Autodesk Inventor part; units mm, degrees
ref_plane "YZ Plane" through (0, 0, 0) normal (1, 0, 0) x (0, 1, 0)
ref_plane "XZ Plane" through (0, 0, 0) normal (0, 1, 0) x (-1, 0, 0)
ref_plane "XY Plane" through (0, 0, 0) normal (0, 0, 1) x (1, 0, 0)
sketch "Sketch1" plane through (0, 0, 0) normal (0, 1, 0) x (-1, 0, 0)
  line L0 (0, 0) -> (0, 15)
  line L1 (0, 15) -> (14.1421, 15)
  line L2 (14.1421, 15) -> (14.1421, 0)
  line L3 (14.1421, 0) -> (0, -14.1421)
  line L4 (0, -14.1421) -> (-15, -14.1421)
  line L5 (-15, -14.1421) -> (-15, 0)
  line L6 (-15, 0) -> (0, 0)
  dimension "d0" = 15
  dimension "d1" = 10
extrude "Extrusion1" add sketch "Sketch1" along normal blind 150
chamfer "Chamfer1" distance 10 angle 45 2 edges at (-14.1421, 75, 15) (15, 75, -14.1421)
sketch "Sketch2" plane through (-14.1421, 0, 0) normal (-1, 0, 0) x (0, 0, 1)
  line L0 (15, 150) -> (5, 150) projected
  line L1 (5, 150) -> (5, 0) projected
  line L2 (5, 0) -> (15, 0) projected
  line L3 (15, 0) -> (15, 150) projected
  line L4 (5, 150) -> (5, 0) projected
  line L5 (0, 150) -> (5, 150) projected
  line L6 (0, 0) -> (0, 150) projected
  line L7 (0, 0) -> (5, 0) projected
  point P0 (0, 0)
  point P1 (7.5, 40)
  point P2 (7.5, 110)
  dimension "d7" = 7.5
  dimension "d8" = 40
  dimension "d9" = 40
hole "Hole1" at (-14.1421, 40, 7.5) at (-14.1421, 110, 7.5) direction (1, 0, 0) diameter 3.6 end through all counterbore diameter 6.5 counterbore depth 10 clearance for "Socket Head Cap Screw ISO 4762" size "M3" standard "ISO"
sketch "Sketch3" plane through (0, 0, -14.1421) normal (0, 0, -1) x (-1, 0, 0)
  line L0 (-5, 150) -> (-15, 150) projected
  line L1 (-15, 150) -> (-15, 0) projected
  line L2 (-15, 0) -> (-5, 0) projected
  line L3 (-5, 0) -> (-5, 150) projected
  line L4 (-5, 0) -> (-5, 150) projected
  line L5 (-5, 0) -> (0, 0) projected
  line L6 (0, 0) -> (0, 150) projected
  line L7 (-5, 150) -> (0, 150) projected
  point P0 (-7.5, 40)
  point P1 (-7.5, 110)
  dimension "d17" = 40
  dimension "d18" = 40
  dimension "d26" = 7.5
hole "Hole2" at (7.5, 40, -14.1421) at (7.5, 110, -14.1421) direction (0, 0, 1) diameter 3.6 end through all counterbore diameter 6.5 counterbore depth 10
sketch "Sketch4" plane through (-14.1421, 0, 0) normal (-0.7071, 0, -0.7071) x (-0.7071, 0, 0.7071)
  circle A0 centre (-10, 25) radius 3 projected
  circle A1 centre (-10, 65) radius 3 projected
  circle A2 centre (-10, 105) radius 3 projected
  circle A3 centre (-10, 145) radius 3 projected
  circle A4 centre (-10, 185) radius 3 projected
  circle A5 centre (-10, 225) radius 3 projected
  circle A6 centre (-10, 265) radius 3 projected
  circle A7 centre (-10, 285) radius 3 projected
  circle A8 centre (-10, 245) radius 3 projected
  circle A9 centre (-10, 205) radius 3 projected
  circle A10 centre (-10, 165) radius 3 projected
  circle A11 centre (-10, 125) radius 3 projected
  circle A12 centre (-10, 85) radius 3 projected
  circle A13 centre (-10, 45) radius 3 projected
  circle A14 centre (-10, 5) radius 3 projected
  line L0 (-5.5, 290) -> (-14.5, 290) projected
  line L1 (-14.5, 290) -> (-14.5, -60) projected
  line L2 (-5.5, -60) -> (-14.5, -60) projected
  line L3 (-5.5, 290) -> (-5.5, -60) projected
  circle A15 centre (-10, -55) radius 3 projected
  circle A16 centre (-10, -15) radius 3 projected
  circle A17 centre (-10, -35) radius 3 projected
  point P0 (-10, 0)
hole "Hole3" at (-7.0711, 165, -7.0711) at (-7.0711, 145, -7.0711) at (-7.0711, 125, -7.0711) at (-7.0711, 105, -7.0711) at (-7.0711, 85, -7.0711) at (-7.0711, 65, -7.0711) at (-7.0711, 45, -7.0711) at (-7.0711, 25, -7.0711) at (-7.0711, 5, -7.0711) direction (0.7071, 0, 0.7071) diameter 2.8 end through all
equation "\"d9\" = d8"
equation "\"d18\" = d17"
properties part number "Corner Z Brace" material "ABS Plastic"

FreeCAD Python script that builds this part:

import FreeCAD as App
import Part
import Sketcher

V = App.Vector
Q = App.Units.Quantity


def edges_at(feature, points):
    """Names of the edges that pass closest to the given points."""
    edges = feature.Shape.Edges
    near = lambda p: min(range(len(edges)), key=lambda i: edges[i].distToShape(Part.Vertex(*p))[0])
    return sorted({f"Edge{near(p) + 1}" for p in points})


def add_polygon(sketch, points):
    """Adds a closed chain of lines whose ends are joined by coincident constraints."""
    first, n = sketch.GeometryCount, len(points)
    for a, b in zip(points, points[1:] + points[:1]):
        sketch.addGeometry(Part.LineSegment(App.Vector(*a, 0), App.Vector(*b, 0)), False)
    for i in range(n):
        sketch.addConstraint(Sketcher.Constraint("Coincident", first + i, 2, first + (i + 1) % n, 1))

doc = App.newDocument("Part")
body = doc.addObject("PartDesign::Body", "Body")

# Sketch on XZ plane
sketch1 = doc.addObject("Sketcher::SketchObject", "Sketch")
body.addObject(sketch1)
sketch1.AttachmentSupport = (doc.XZ_Plane, [""])
sketch1.MapMode = "FlatFace"
add_polygon(sketch1, [(0, 15), (0, 0), (15, 0), (15, -14.1421), (0, -14.1421), (-14.1421, 0), (-14.1421, 15)])  # lines 0-6
sketch1.addConstraint([
    Sketcher.Constraint("Vertical", 0),
    Sketcher.Constraint("Horizontal", 1),
    Sketcher.Constraint("Vertical", 2),
    Sketcher.Constraint("Horizontal", 3),
    Sketcher.Constraint("Vertical", 5),
    Sketcher.Constraint("Horizontal", 6),
    Sketcher.Constraint("Coincident", 0, 2, -1, 1),
    Sketcher.Constraint("PointOnObject", 3, 2, -2),
    Sketcher.Constraint("PointOnObject", 4, 2, -1),
    Sketcher.Constraint("Equal", 3, 0),
    Sketcher.Constraint("Equal", 6, 2),
    Sketcher.Constraint("DistanceX", 1, 1, 1, 2, Q("15 mm")),
    Sketcher.Constraint("Distance", 4, Q("20 mm")),
])
pad1 = doc.addObject("PartDesign::Pad", "Pad")
body.addObject(pad1)
pad1.Profile = sketch1
pad1.Length = 150
pad1.Reversed = True
doc.recompute()

chamfer = doc.addObject("PartDesign::Chamfer", "Chamfer")
body.addObject(chamfer)
chamfer.Base = (pad1, edges_at(pad1, [(-14.142, 75, 15), (15, 75, -14.142)]))
chamfer.Size = 10

# Sketch on YZ plane
sketch2 = doc.addObject("Sketcher::SketchObject", "Sketch001")
body.addObject(sketch2)
sketch2.AttachmentSupport = (doc.YZ_Plane, [""])
sketch2.MapMode = "FlatFace"
sketch2.AttachmentOffset = App.Placement(V(0, 0, -14.1421), App.Rotation())
sketch2.addGeometry([
    Part.Circle(V(40, 7.5, 0), V(0, 0, 1), 1.8),
    Part.Circle(V(110, 7.5, 0), V(0, 0, 1), 1.8),
], False)
sketch2.addConstraint([
    Sketcher.Constraint("Equal", 0, 1),
    Sketcher.Constraint("Horizontal", 0, 3, 1, 3),
    Sketcher.Constraint("Diameter", 0, Q("3.6 mm")),
    Sketcher.Constraint("DistanceX", -1, 1, 0, 3, Q("40 mm")),
    Sketcher.Constraint("DistanceX", -1, 1, 1, 3, Q("110 mm")),
    Sketcher.Constraint("DistanceY", -1, 1, 0, 3, Q("7.5 mm")),
])
doc.recompute()
hole = doc.addObject("PartDesign::Hole", "Hole")
body.addObject(hole)
hole.Profile = sketch2
hole.ThreadType = "None"
hole.Diameter = 3.6
hole.DepthType = "ThroughAll"
hole.HoleCutType = "Counterbore"
hole.HoleCutDiameter = 6.5
hole.HoleCutDepth = 10
hole.Reversed = True

# Sketch on XY plane
sketch3 = doc.addObject("Sketcher::SketchObject", "Sketch002")
body.addObject(sketch3)
sketch3.AttachmentSupport = (doc.XY_Plane, [""])
sketch3.MapMode = "FlatFace"
sketch3.AttachmentOffset = App.Placement(V(0, 0, -14.1421), App.Rotation())
sketch3.addGeometry([
    Part.Circle(V(7.5, 40, 0), V(0, 0, 1), 1.8),
    Part.Circle(V(7.5, 110, 0), V(0, 0, 1), 1.8),
], False)
sketch3.addConstraint([
    Sketcher.Constraint("Equal", 0, 1),
    Sketcher.Constraint("Vertical", 0, 3, 1, 3),
    Sketcher.Constraint("Diameter", 0, Q("3.6 mm")),
    Sketcher.Constraint("DistanceY", -1, 1, 0, 3, Q("40 mm")),
    Sketcher.Constraint("DistanceY", -1, 1, 1, 3, Q("110 mm")),
    Sketcher.Constraint("DistanceX", -1, 1, 0, 3, Q("7.5 mm")),
])
doc.recompute()
hole2 = doc.addObject("PartDesign::Hole", "Hole001")
body.addObject(hole2)
hole2.Profile = sketch3
hole2.ThreadType = "None"
hole2.Diameter = 3.6
hole2.DepthType = "ThroughAll"
hole2.HoleCutType = "Counterbore"
hole2.HoleCutDiameter = 6.5
hole2.HoleCutDepth = 10
hole2.Reversed = True

# Sketch on an angled plane
sketch4 = doc.addObject("Sketcher::SketchObject", "Sketch003")
body.addObject(sketch4)
sketch4.Placement = App.Placement(V(-7.0711, 0, -7.0711), App.Rotation(V(-0.707106781, 0, 0.707106781), V(0, 0.999999999, 0), V(-0.707106781, 0, -0.707106781), "ZXY"))
sketch4.addGeometry([
    Part.Circle(V(0, 165, 0), V(0, 0, 1), 1.4),  # 0
    Part.Circle(V(0, 145, 0), V(0, 0, 1), 1.4),  # 1
    Part.Circle(V(0, 125, 0), V(0, 0, 1), 1.4),  # 2
    Part.Circle(V(0, 105, 0), V(0, 0, 1), 1.4),  # 3
    Part.Circle(V(0, 85, 0), V(0, 0, 1), 1.4),  # 4
    Part.Circle(V(0, 65, 0), V(0, 0, 1), 1.4),  # 5
    Part.Circle(V(0, 45, 0), V(0, 0, 1), 1.4),  # 6
    Part.Circle(V(0, 25, 0), V(0, 0, 1), 1.4),  # 7
    Part.Circle(V(0, 5, 0), V(0, 0, 1), 1.4),  # 8
], False)
sketch4.addConstraint([
    Sketcher.Constraint("Equal", 0, 1),
    Sketcher.Constraint("Equal", 1, 2),
    Sketcher.Constraint("Equal", 2, 3),
    Sketcher.Constraint("Equal", 3, 4),
    Sketcher.Constraint("Equal", 4, 5),
    Sketcher.Constraint("Equal", 5, 6),
    Sketcher.Constraint("Equal", 6, 7),
    Sketcher.Constraint("Equal", 7, 8),
    Sketcher.Constraint("PointOnObject", 0, 3, -2),
    Sketcher.Constraint("PointOnObject", 1, 3, -2),
    Sketcher.Constraint("PointOnObject", 2, 3, -2),
    Sketcher.Constraint("PointOnObject", 3, 3, -2),
    Sketcher.Constraint("PointOnObject", 4, 3, -2),
    Sketcher.Constraint("PointOnObject", 5, 3, -2),
    Sketcher.Constraint("PointOnObject", 6, 3, -2),
    Sketcher.Constraint("PointOnObject", 7, 3, -2),
    Sketcher.Constraint("PointOnObject", 8, 3, -2),
    Sketcher.Constraint("Diameter", 0, Q("2.8 mm")),
    Sketcher.Constraint("DistanceY", -1, 1, 0, 3, Q("165 mm")),
    Sketcher.Constraint("DistanceY", -1, 1, 1, 3, Q("145 mm")),
    Sketcher.Constraint("DistanceY", -1, 1, 2, 3, Q("125 mm")),
    Sketcher.Constraint("DistanceY", -1, 1, 3, 3, Q("105 mm")),
    Sketcher.Constraint("DistanceY", -1, 1, 4, 3, Q("85 mm")),
    Sketcher.Constraint("DistanceY", -1, 1, 5, 3, Q("65 mm")),
    Sketcher.Constraint("DistanceY", -1, 1, 6, 3, Q("45 mm")),
    Sketcher.Constraint("DistanceY", -1, 1, 7, 3, Q("25 mm")),
    Sketcher.Constraint("DistanceY", -1, 1, 8, 3, Q("5 mm")),
])
doc.recompute()
hole3 = doc.addObject("PartDesign::Hole", "Hole002")
body.addObject(hole3)
hole3.Profile = sketch4
hole3.ThreadType = "None"
hole3.Diameter = 2.8
hole3.DepthType = "ThroughAll"

doc.recompute()
